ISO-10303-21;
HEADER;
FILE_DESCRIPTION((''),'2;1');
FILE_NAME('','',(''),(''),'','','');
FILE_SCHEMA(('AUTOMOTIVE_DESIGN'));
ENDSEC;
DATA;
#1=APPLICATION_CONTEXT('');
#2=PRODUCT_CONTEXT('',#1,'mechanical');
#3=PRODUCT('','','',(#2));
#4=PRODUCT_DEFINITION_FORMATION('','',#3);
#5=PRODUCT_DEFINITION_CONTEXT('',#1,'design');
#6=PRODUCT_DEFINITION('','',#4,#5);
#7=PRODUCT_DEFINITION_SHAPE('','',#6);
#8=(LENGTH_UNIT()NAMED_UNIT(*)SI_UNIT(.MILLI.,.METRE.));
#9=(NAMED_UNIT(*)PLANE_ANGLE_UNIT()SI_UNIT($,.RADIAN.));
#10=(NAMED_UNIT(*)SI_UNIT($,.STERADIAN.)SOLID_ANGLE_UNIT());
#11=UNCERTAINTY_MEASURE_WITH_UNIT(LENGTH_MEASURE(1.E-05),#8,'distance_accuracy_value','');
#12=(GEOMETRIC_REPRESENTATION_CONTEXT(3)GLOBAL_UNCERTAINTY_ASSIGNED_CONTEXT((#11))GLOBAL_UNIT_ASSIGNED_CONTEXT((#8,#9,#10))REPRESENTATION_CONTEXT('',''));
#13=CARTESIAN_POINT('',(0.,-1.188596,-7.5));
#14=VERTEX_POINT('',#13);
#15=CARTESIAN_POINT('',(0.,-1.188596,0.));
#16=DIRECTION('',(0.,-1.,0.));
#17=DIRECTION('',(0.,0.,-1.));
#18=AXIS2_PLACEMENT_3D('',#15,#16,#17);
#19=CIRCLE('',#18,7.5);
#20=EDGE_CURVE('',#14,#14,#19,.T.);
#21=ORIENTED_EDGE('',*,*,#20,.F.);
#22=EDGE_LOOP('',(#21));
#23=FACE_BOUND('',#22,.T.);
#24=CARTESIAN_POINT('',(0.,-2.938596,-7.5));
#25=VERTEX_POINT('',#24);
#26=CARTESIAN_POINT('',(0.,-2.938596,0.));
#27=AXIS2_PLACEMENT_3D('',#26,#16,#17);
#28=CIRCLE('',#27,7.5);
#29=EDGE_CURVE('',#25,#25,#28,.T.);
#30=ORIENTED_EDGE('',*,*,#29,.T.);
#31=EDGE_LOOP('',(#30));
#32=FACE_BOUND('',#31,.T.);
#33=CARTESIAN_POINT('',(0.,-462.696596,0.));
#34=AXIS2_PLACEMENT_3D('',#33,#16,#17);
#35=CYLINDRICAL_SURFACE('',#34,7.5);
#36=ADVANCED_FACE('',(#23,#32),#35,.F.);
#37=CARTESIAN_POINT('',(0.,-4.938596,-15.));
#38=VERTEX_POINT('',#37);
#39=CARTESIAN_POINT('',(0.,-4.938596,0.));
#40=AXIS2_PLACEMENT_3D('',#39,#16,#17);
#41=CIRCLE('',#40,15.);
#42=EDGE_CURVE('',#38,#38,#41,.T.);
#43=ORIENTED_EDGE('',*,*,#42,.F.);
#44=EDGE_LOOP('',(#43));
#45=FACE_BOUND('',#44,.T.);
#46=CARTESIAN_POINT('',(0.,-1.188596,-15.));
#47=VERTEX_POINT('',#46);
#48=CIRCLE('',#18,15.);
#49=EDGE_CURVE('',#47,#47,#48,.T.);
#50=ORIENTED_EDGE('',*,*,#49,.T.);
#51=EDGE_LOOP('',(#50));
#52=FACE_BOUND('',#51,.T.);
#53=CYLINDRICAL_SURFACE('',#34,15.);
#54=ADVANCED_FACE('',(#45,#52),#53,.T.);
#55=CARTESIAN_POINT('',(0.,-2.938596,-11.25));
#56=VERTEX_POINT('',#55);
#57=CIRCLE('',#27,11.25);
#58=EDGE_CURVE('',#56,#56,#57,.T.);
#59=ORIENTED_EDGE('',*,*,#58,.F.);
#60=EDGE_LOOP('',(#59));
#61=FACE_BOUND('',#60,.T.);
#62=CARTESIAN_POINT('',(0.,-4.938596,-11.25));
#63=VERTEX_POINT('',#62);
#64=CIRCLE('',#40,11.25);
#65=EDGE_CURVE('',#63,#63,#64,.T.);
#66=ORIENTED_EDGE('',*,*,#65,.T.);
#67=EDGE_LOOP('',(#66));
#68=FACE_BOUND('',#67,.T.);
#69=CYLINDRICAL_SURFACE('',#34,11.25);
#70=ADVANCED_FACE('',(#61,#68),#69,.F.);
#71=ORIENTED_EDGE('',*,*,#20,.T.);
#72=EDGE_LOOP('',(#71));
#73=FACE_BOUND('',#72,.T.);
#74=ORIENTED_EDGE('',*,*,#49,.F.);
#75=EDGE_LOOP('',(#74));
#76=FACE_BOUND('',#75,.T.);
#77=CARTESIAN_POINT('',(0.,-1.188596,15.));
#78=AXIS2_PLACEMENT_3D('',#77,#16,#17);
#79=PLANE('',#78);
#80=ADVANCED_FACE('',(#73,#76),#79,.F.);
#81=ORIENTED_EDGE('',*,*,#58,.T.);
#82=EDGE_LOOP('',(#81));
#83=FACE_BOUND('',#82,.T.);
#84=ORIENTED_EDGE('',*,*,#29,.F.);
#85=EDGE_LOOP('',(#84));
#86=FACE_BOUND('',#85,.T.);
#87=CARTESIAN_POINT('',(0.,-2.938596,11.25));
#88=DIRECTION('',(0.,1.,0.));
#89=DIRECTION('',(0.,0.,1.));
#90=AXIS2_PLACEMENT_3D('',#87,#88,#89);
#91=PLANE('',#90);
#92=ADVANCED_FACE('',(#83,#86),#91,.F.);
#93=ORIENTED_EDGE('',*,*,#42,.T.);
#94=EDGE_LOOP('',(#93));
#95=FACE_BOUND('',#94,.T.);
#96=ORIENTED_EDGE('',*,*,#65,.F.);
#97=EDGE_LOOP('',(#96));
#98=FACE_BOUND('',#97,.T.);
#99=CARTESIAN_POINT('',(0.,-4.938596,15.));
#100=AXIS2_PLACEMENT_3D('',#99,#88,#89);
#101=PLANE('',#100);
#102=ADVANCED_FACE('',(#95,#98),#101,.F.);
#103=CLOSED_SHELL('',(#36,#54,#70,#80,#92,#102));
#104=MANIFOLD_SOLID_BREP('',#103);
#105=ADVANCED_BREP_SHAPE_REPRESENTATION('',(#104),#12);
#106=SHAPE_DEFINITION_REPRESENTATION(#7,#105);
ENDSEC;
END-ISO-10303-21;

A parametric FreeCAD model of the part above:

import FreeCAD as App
import Part
import Sketcher
from FreeCAD import Vector
Q = App.Units.Quantity


def add_polygon(sketch, points):
    """Adds a closed chain of lines whose ends are joined by coincident constraints."""
    first, n = sketch.GeometryCount, len(points)
    for a, b in zip(points, points[1:] + points[:1]):
        sketch.addGeometry(Part.LineSegment(App.Vector(*a, 0), App.Vector(*b, 0)), False)
    for i in range(n):
        sketch.addConstraint(Sketcher.Constraint("Coincident", first + i, 2, first + (i + 1) % n, 1))

doc = App.newDocument("Part")
body = doc.addObject("PartDesign::Body", "Body")

# Sketch on YZ plane
sketch1 = doc.addObject("Sketcher::SketchObject", "Sketch")
body.addObject(sketch1)
sketch1.AttachmentSupport = (doc.YZ_Plane, [""])
sketch1.MapMode = "FlatFace"
add_polygon(sketch1, [(-4.9, 11.2), (-2.9, 11.2), (-2.9, 7.5), (-1.2, 7.5), (-1.2, 15), (-4.9, 15)])  # lines 0-5
sketch1.addConstraint([
    Sketcher.Constraint("Horizontal", 0),
    Sketcher.Constraint("Vertical", 1),
    Sketcher.Constraint("Horizontal", 2),
    Sketcher.Constraint("Vertical", 3),
    Sketcher.Constraint("Horizontal", 4),
    Sketcher.Constraint("Vertical", 5),
    Sketcher.Constraint("Equal", 4, 1),
    Sketcher.Constraint("Equal", 1, 5),
    Sketcher.Constraint("DistanceX", 0, 1, 0, 2, Q("2 mm")),
    Sketcher.Constraint("DistanceY", 3, 1, 3, 2, Q("7.5 mm")),
    Sketcher.Constraint("DistanceY", -1, 1, 3, 2, Q("15 mm")),
    Sketcher.Constraint("DistanceX", 0, 2, -1, 1, Q("2.938596 mm")),
])
revolution = doc.addObject("PartDesign::Revolution", "Revolution")
body.addObject(revolution)
revolution.Profile = sketch1
revolution.ReferenceAxis = (sketch1, ["H_Axis"])
revolution.Angle = 360

doc.recompute()
